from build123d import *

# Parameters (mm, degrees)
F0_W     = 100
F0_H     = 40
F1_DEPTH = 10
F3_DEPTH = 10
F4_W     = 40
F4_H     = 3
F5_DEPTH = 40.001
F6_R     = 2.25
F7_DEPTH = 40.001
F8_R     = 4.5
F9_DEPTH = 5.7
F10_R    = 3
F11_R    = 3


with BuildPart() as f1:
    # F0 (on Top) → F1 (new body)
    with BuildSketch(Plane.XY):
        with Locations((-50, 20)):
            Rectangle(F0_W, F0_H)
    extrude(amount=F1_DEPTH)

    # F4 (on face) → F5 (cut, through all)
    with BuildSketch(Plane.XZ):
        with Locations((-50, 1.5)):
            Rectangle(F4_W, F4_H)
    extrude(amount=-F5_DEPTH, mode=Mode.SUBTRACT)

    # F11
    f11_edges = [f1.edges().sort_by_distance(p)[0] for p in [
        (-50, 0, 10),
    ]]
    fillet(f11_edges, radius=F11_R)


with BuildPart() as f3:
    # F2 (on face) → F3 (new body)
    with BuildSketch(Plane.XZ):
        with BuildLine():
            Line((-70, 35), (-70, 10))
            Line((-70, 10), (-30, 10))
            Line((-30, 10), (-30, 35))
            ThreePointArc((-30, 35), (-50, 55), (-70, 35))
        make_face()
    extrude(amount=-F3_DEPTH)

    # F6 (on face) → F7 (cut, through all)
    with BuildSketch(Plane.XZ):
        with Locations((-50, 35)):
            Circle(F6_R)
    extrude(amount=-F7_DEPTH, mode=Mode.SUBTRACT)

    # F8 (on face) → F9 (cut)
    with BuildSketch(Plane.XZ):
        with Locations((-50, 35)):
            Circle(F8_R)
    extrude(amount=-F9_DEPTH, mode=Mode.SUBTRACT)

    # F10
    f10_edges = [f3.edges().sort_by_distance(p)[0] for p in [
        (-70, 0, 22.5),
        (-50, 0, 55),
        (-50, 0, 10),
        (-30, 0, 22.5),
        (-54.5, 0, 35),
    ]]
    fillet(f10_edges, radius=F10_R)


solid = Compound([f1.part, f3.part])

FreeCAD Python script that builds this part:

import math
import FreeCAD as App
import Part
import Sketcher
from FreeCAD import Vector
Q = App.Units.Quantity


def edges_at(feature, points):
    """Names of the edges that pass closest to the given points."""
    edges = feature.Shape.Edges
    near = lambda p: min(range(len(edges)), key=lambda i: edges[i].distToShape(Part.Vertex(*p))[0])
    return sorted({f"Edge{near(p) + 1}" for p in points})

doc = App.newDocument("Part")
body = doc.addObject("PartDesign::Body", "Body")

# Sketch on XY plane
sketch1 = doc.addObject("Sketcher::SketchObject", "Sketch")
body.addObject(sketch1)
sketch1.AttachmentSupport = (doc.XY_Plane, [""])
sketch1.MapMode = "FlatFace"
sketch1.addGeometry([
    Part.LineSegment(Vector(-100, 40, 0), Vector(-100, 0, 0)),
    Part.LineSegment(Vector(-100, 0, 0), Vector(0, 0, 0)),
    Part.LineSegment(Vector(0, 0, 0), Vector(0, 40, 0)),
    Part.LineSegment(Vector(0, 40, 0), Vector(-100, 40, 0)),
], False)
sketch1.addConstraint([
    Sketcher.Constraint("Coincident", 0, 2, 1, 1),
    Sketcher.Constraint("Coincident", 1, 2, 2, 1),
    Sketcher.Constraint("Coincident", 2, 2, 3, 1),
    Sketcher.Constraint("Coincident", 3, 2, 0, 1),
    Sketcher.Constraint("Vertical", 0),
    Sketcher.Constraint("Horizontal", 1),
    Sketcher.Constraint("Vertical", 2),
    Sketcher.Constraint("Horizontal", 3),
    Sketcher.Constraint("Coincident", 1, 2, -1, 1),
    Sketcher.Constraint("DistanceX", 1, 1, 1, 2, Q("100 mm")),
    Sketcher.Constraint("DistanceY", 0, 2, 0, 1, Q("40 mm")),
])
pad1 = doc.addObject("PartDesign::Pad", "Pad")
body.addObject(pad1)
pad1.Profile = sketch1
pad1.Length = 10

# Sketch on XZ plane
sketch2 = doc.addObject("Sketcher::SketchObject", "Sketch001")
body.addObject(sketch2)
sketch2.AttachmentSupport = (doc.XZ_Plane, [""])
sketch2.MapMode = "FlatFace"
sketch2.addGeometry([
    Part.LineSegment(Vector(-70, 3, 0), Vector(-70, 0, 0)),
    Part.LineSegment(Vector(-70, 0, 0), Vector(-30, 0, 0)),
    Part.LineSegment(Vector(-30, 0, 0), Vector(-30, 3, 0)),
    Part.LineSegment(Vector(-30, 3, 0), Vector(-70, 3, 0)),
], False)
sketch2.addConstraint([
    Sketcher.Constraint("Coincident", 0, 2, 1, 1),
    Sketcher.Constraint("Coincident", 1, 2, 2, 1),
    Sketcher.Constraint("Coincident", 2, 2, 3, 1),
    Sketcher.Constraint("Coincident", 3, 2, 0, 1),
    Sketcher.Constraint("Vertical", 0),
    Sketcher.Constraint("Horizontal", 1),
    Sketcher.Constraint("Vertical", 2),
    Sketcher.Constraint("Horizontal", 3),
    Sketcher.Constraint("PointOnObject", 0, 2, -1),
    Sketcher.Constraint("DistanceX", 1, 1, 1, 2, Q("40 mm")),
    Sketcher.Constraint("DistanceY", 0, 2, 0, 1, Q("3 mm")),
    Sketcher.Constraint("DistanceX", 0, 2, -1, 1, Q("70 mm")),
])
pocket1 = doc.addObject("PartDesign::Pocket", "Pocket")
body.addObject(pocket1)
pocket1.Profile = sketch2
pocket1.Type = "ThroughAll"
doc.recompute()

fillet = doc.addObject("PartDesign::Fillet", "Fillet")
body.addObject(fillet)
fillet.Base = (pocket1, edges_at(pocket1, [(-50, 0, 10)]))
fillet.Radius = 3
body2 = doc.addObject("PartDesign::Body", "Body001")

# Sketch on XZ plane
sketch3 = doc.addObject("Sketcher::SketchObject", "Sketch002")
body2.addObject(sketch3)
sketch3.AttachmentSupport = (doc.getObject("XZ_Plane001"), [""])
sketch3.MapMode = "FlatFace"
sketch3.addGeometry([
    Part.LineSegment(Vector(-70, 35, 0), Vector(-70, 10, 0)),
    Part.LineSegment(Vector(-70, 10, 0), Vector(-30, 10, 0)),
    Part.LineSegment(Vector(-30, 10, 0), Vector(-30, 35, 0)),
    Part.ArcOfCircle(Part.Circle(Vector(-50, 35, 0), Vector(0, 0, 1), 20), math.radians(0), math.radians(180)),
], False)
sketch3.addConstraint([
    Sketcher.Constraint("Coincident", 0, 2, 1, 1),
    Sketcher.Constraint("Coincident", 1, 2, 2, 1),
    Sketcher.Constraint("Tangent", 2, 2, 3, 1),
    Sketcher.Constraint("Tangent", 3, 2, 0, 1),
    Sketcher.Constraint("Vertical", 0),
    Sketcher.Constraint("Horizontal", 1),
    Sketcher.Constraint("Vertical", 2),
    Sketcher.Constraint("Radius", 3, Q("20 mm")),
    Sketcher.Constraint("DistanceY", 0, 2, 0, 1, Q("25 mm")),
    Sketcher.Constraint("DistanceX", 3, 3, -1, 1, Q("50 mm")),
    Sketcher.Constraint("DistanceY", -1, 1, 3, 3, Q("35 mm")),
])
pad2 = doc.addObject("PartDesign::Pad", "Pad001")
body2.addObject(pad2)
pad2.Profile = sketch3
pad2.Length = 10
pad2.Reversed = True

# Sketch on XZ plane
sketch4 = doc.addObject("Sketcher::SketchObject", "Sketch003")
body2.addObject(sketch4)
sketch4.AttachmentSupport = (doc.getObject("XZ_Plane001"), [""])
sketch4.MapMode = "FlatFace"
sketch4.addGeometry(Part.Circle(Vector(-50, 35, 0), Vector(0, 0, 1), 2.2), False)
sketch4.addConstraint([
    Sketcher.Constraint("Diameter", 0, Q("4.5 mm")),
    Sketcher.Constraint("DistanceX", 0, 3, -1, 1, Q("50 mm")),
    Sketcher.Constraint("DistanceY", -1, 1, 0, 3, Q("35 mm")),
])
pocket2 = doc.addObject("PartDesign::Pocket", "Pocket001")
body2.addObject(pocket2)
pocket2.Profile = sketch4
pocket2.Type = "ThroughAll"

# Sketch on XZ plane
sketch5 = doc.addObject("Sketcher::SketchObject", "Sketch004")
body2.addObject(sketch5)
sketch5.AttachmentSupport = (doc.getObject("XZ_Plane001"), [""])
sketch5.MapMode = "FlatFace"
sketch5.addGeometry(Part.Circle(Vector(-50, 35, 0), Vector(0, 0, 1), 4.5), False)
sketch5.addConstraint([
    Sketcher.Constraint("Diameter", 0, Q("9 mm")),
    Sketcher.Constraint("DistanceX", 0, 3, -1, 1, Q("50 mm")),
    Sketcher.Constraint("DistanceY", -1, 1, 0, 3, Q("35 mm")),
])
pocket3 = doc.addObject("PartDesign::Pocket", "Pocket002")
body2.addObject(pocket3)
pocket3.Profile = sketch5
pocket3.Length = 5.7
doc.recompute()

fillet2 = doc.addObject("PartDesign::Fillet", "Fillet001")
body2.addObject(fillet2)
fillet2.Base = (pocket3, edges_at(pocket3, [
    (-70, 0, 22.5),
    (-50, 0, 55),
    (-50, 0, 10),
    (-30, 0, 22.5),
    (-54.5, 0, 35),
]))
fillet2.Radius = 3

doc.recompute()
